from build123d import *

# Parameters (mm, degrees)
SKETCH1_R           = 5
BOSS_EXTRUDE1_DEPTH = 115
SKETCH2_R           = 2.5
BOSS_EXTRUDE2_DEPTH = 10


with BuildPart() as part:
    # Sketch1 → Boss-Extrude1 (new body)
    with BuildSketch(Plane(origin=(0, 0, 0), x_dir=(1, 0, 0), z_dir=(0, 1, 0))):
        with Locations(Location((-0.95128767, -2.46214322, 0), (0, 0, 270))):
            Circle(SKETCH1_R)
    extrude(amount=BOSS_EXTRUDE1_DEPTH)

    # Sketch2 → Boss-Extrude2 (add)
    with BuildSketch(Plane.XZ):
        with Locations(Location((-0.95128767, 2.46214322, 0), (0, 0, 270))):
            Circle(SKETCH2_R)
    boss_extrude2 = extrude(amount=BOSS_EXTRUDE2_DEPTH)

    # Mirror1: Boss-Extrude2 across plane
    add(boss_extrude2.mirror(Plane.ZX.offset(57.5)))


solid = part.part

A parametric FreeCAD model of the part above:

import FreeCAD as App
import Part
import Sketcher
from FreeCAD import Vector

doc = App.newDocument("Part")
body = doc.addObject("PartDesign::Body", "Body")

# Sketch on XZ plane
sketch1 = body.newObject("Sketcher::SketchObject", "Sketch")
sketch1.AttachmentSupport = (doc.getObject("XZ_Plane"), [""])
sketch1.MapMode = "FlatFace"
sketch1.addGeometry(Part.Circle(Vector(-1, 2, 0), Vector(0, 0, 1), 5), False)
sketch1.addConstraint(Sketcher.Constraint("Diameter", 0, 10.0))
sketch1.addConstraint(Sketcher.Constraint("DistanceX", 0, 3, -1, 1, 0.951288))
sketch1.addConstraint(Sketcher.Constraint("DistanceY", -1, 1, 0, 3, 2.462143))
pad1 = body.newObject("PartDesign::Pad", "Pad")
pad1.Profile = sketch1
pad1.Length = 115
pad1.Reversed = True

# Sketch on XZ plane
sketch2 = body.newObject("Sketcher::SketchObject", "Sketch001")
sketch2.AttachmentSupport = (doc.getObject("XZ_Plane"), [""])
sketch2.MapMode = "FlatFace"
sketch2.addGeometry(Part.Circle(Vector(-1, 2.5, 0), Vector(0, 0, 1), 2.5), False)
sketch2.addConstraint(Sketcher.Constraint("Diameter", 0, 5.0))
sketch2.addConstraint(Sketcher.Constraint("DistanceX", 0, 3, -1, 1, 0.951288))
sketch2.addConstraint(Sketcher.Constraint("DistanceY", -1, 1, 0, 3, 2.462143))
pad2 = body.newObject("PartDesign::Pad", "Pad001")
pad2.Profile = sketch2
pad2.Length = 10
doc.recompute()

datumplane = body.newObject("PartDesign::Plane", "DatumPlane")
datumplane.AttachmentSupport = (doc.getObject("XZ_Plane"), [""])
datumplane.MapMode = "FlatFace"
datumplane.AttachmentOffset = App.Placement(Vector(0, 0, -57.5), App.Rotation())
mirrored = body.newObject("PartDesign::Mirrored", "Mirrored")
mirrored.Originals = [pad2]
mirrored.MirrorPlane = (datumplane, [""])
body.Tip = mirrored

doc.recompute()
